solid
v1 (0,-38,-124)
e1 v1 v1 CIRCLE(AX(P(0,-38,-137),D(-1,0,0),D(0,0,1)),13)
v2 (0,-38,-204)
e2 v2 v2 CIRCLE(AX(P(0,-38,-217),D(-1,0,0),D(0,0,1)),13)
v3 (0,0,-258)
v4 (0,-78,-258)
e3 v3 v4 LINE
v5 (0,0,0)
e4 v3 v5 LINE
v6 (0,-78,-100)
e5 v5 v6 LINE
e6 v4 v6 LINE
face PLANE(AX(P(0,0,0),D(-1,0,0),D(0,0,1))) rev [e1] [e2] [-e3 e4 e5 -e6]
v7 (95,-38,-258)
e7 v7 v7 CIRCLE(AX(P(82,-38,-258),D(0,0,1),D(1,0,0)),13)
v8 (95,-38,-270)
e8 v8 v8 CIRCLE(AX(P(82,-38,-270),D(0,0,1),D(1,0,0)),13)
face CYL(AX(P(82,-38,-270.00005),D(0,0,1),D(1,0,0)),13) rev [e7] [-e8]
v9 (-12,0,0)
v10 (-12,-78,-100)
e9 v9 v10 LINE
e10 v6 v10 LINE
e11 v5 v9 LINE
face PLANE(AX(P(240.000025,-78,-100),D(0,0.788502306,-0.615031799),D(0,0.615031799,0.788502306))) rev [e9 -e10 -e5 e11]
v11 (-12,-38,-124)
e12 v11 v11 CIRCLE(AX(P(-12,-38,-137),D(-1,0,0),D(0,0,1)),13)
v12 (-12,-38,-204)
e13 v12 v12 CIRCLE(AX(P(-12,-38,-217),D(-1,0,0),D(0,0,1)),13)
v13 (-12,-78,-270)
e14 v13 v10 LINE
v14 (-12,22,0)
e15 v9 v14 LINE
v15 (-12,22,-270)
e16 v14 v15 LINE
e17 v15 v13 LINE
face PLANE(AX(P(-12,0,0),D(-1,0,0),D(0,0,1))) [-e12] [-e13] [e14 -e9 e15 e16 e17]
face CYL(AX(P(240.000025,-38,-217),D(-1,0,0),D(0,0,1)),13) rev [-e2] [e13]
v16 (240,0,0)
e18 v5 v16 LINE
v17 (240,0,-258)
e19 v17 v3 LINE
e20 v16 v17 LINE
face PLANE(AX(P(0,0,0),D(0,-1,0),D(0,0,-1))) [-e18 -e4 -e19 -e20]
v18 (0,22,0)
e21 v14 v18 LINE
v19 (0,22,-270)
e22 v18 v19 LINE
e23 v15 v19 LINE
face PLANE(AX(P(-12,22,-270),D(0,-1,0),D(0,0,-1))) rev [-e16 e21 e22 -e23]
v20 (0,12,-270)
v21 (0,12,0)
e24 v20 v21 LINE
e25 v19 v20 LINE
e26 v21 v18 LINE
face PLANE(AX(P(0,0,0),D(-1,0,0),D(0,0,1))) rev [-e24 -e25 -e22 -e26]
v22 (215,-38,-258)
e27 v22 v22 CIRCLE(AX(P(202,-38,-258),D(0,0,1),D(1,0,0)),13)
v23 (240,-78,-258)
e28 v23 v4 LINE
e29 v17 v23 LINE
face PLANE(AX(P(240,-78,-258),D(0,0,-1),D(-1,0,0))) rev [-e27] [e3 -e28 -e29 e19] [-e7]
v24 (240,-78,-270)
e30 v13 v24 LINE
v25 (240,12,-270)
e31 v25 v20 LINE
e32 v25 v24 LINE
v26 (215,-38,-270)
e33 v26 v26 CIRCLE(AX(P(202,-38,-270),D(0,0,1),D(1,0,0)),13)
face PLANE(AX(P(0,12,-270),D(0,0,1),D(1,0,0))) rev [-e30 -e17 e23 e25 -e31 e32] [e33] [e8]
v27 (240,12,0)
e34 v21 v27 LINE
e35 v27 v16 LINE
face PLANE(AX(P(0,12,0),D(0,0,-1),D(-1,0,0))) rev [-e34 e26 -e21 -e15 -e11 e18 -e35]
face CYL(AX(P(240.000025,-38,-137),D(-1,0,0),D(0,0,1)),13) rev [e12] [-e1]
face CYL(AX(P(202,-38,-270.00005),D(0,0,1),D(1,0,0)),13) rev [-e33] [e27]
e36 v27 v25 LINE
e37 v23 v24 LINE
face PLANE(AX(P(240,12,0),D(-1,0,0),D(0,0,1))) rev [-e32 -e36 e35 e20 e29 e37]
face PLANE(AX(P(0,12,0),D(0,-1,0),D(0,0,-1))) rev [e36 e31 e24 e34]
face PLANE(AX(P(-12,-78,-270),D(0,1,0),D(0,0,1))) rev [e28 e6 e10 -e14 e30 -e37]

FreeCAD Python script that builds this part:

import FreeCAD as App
import Part
import Sketcher

V = App.Vector
Q = App.Units.Quantity

doc = App.newDocument("Part")
body = doc.addObject("PartDesign::Body", "Body")

sketch1 = body.newObject("Sketcher::SketchObject", "Sketch")
sketch1.AttachmentSupport = (doc.getObject("XZ_Plane"), [""])
sketch1.MapMode = "FlatFace"
sketch1.addGeometry(Part.LineSegment(V(0, -270, 0), V(0, 0, 0)), False)
sketch1.addGeometry(Part.LineSegment(V(0, 0, 0), V(240, 0, 0)), False)
sketch1.addGeometry(Part.LineSegment(V(240, 0, 0), V(240, -270, 0)), False)
sketch1.addGeometry(Part.LineSegment(V(240, -270, 0), V(0, -270, 0)), False)
sketch1.addConstraint(Sketcher.Constraint("Coincident", 0, 2, 1, 1))
sketch1.addConstraint(Sketcher.Constraint("Coincident", 1, 2, 2, 1))
sketch1.addConstraint(Sketcher.Constraint("Coincident", 2, 2, 3, 1))
sketch1.addConstraint(Sketcher.Constraint("Coincident", 3, 2, 0, 1))
sketch1.addConstraint(Sketcher.Constraint("Vertical", 0))
sketch1.addConstraint(Sketcher.Constraint("Horizontal", 1))
sketch1.addConstraint(Sketcher.Constraint("Vertical", 2))
sketch1.addConstraint(Sketcher.Constraint("Horizontal", 3))
sketch1.addConstraint(Sketcher.Constraint("Coincident", 0, 2, -1, 1))
sketch1.addConstraint(Sketcher.Constraint("DistanceX", 1, 1, 1, 2, Q("240 mm")))
sketch1.addConstraint(Sketcher.Constraint("DistanceY", 0, 1, 0, 2, Q("270 mm")))
pad1 = body.newObject("PartDesign::Pad", "Pad")
pad1.Profile = sketch1
pad1.Length = 12
pad1.Reversed = True

sketch2 = body.newObject("Sketcher::SketchObject", "Sketch001")
sketch2.AttachmentSupport = (doc.getObject("YZ_Plane"), [""])
sketch2.MapMode = "FlatFace"
sketch2.addGeometry(Part.LineSegment(V(22, -270, 0), V(-78, -270, 0)), False)
sketch2.addGeometry(Part.LineSegment(V(-78, -270, 0), V(-78, 0, 0)), False)
sketch2.addGeometry(Part.LineSegment(V(-78, 0, 0), V(22, 0, 0)), False)
sketch2.addGeometry(Part.LineSegment(V(22, 0, 0), V(22, -270, 0)), False)
sketch2.addConstraint(Sketcher.Constraint("Coincident", 0, 2, 1, 1))
sketch2.addConstraint(Sketcher.Constraint("Coincident", 1, 2, 2, 1))
sketch2.addConstraint(Sketcher.Constraint("Coincident", 2, 2, 3, 1))
sketch2.addConstraint(Sketcher.Constraint("Coincident", 3, 2, 0, 1))
sketch2.addConstraint(Sketcher.Constraint("Horizontal", 0))
sketch2.addConstraint(Sketcher.Constraint("Vertical", 1))
sketch2.addConstraint(Sketcher.Constraint("Horizontal", 2))
sketch2.addConstraint(Sketcher.Constraint("Vertical", 3))
sketch2.addConstraint(Sketcher.Constraint("PointOnObject", 1, 2, -1))
sketch2.addConstraint(Sketcher.Constraint("DistanceX", 0, 2, 0, 1, Q("100 mm")))
sketch2.addConstraint(Sketcher.Constraint("DistanceY", 1, 1, 1, 2, Q("270 mm")))
sketch2.addConstraint(Sketcher.Constraint("DistanceX", 0, 2, -1, 1, Q("78 mm")))
pad2 = body.newObject("PartDesign::Pad", "Pad001")
pad2.Profile = sketch2
pad2.Length = 12
pad2.Reversed = True

sketch3 = body.newObject("Sketcher::SketchObject", "Sketch002")
sketch3.AttachmentSupport = (doc.getObject("YZ_Plane"), [""])
sketch3.MapMode = "FlatFace"
sketch3.addGeometry(Part.LineSegment(V(0, -258, 0), V(-78, -258, 0)), False)
sketch3.addGeometry(Part.LineSegment(V(-78, -258, 0), V(-78, -270, 0)), False)
sketch3.addGeometry(Part.LineSegment(V(-78, -270, 0), V(0, -270, 0)), False)
sketch3.addGeometry(Part.LineSegment(V(0, -270, 0), V(0, -258, 0)), False)
sketch3.addConstraint(Sketcher.Constraint("Coincident", 0, 2, 1, 1))
sketch3.addConstraint(Sketcher.Constraint("Coincident", 1, 2, 2, 1))
sketch3.addConstraint(Sketcher.Constraint("Coincident", 2, 2, 3, 1))
sketch3.addConstraint(Sketcher.Constraint("Coincident", 3, 2, 0, 1))
sketch3.addConstraint(Sketcher.Constraint("Horizontal", 0))
sketch3.addConstraint(Sketcher.Constraint("Vertical", 1))
sketch3.addConstraint(Sketcher.Constraint("Horizontal", 2))
sketch3.addConstraint(Sketcher.Constraint("Vertical", 3))
sketch3.addConstraint(Sketcher.Constraint("PointOnObject", 2, 2, -2))
sketch3.addConstraint(Sketcher.Constraint("DistanceX", 0, 2, 0, 1, Q("78 mm")))
sketch3.addConstraint(Sketcher.Constraint("DistanceY", 1, 2, 1, 1, Q("12 mm")))
sketch3.addConstraint(Sketcher.Constraint("DistanceY", 0, 2, -1, 1, Q("258 mm")))
pad3 = body.newObject("PartDesign::Pad", "Pad002")
pad3.Profile = sketch3
pad3.Length = 240

sketch4 = body.newObject("Sketcher::SketchObject", "Sketch003")
sketch4.AttachmentSupport = (doc.getObject("XY_Plane"), [""])
sketch4.MapMode = "FlatFace"
sketch4.AttachmentOffset = App.Placement(V(0, 0, -258), App.Rotation())
sketch4.addGeometry(Part.Circle(V(82, -38, 0), V(0, 0, 1), 13), False)
sketch4.addGeometry(Part.Circle(V(202, -38, 0), V(0, 0, 1), 13), False)
sketch4.addConstraint(Sketcher.Constraint("Equal", 0, 1))
sketch4.addConstraint(Sketcher.Constraint("Horizontal", 0, 3, 1, 3))
sketch4.addConstraint(Sketcher.Constraint("Diameter", 0, Q("26 mm")))
sketch4.addConstraint(Sketcher.Constraint("DistanceX", -1, 1, 0, 3, Q("82 mm")))
sketch4.addConstraint(Sketcher.Constraint("DistanceY", 0, 3, -1, 1, Q("38 mm")))
sketch4.addConstraint(Sketcher.Constraint("DistanceX", -1, 1, 1, 3, Q("202 mm")))
pocket1 = body.newObject("PartDesign::Pocket", "Pocket")
pocket1.Profile = sketch4
pocket1.Type = "ThroughAll"

sketch5 = body.newObject("Sketcher::SketchObject", "Sketch004")
sketch5.AttachmentSupport = (doc.getObject("YZ_Plane"), [""])
sketch5.MapMode = "FlatFace"
sketch5.AttachmentOffset = App.Placement(V(0, 0, -12), App.Rotation())
sketch5.addGeometry(Part.Circle(V(-38, -217, 0), V(0, 0, 1), 13), False)
sketch5.addGeometry(Part.Circle(V(-38, -137, 0), V(0, 0, 1), 13), False)
sketch5.addGeometry(Part.LineSegment(V(0, 0, 0), V(-78, -100, 0)), False)
sketch5.addGeometry(Part.LineSegment(V(-78, -100, 0), V(-78, 0, 0)), False)
sketch5.addGeometry(Part.LineSegment(V(-78, 0, 0), V(0, 0, 0)), False)
sketch5.addConstraint(Sketcher.Constraint("Coincident", 2, 2, 3, 1))
sketch5.addConstraint(Sketcher.Constraint("Coincident", 3, 2, 4, 1))
sketch5.addConstraint(Sketcher.Constraint("Coincident", 4, 2, 2, 1))
sketch5.addConstraint(Sketcher.Constraint("Vertical", 3))
sketch5.addConstraint(Sketcher.Constraint("Horizontal", 4))
sketch5.addConstraint(Sketcher.Constraint("Coincident", 4, 2, -1, 1))
sketch5.addConstraint(Sketcher.Constraint("Equal", 0, 1))
sketch5.addConstraint(Sketcher.Constraint("Vertical", 0, 3, 1, 3))
sketch5.addConstraint(Sketcher.Constraint("Diameter", 0, Q("26 mm")))
sketch5.addConstraint(Sketcher.Constraint("DistanceX", 4, 1, 4, 2, Q("78 mm")))
sketch5.addConstraint(Sketcher.Constraint("DistanceY", 3, 1, 3, 2, Q("100 mm")))
sketch5.addConstraint(Sketcher.Constraint("DistanceX", 0, 3, -1, 1, Q("38 mm")))
sketch5.addConstraint(Sketcher.Constraint("DistanceY", 0, 3, -1, 1, Q("217 mm")))
sketch5.addConstraint(Sketcher.Constraint("DistanceY", 1, 3, -1, 1, Q("137 mm")))
pocket2 = body.newObject("PartDesign::Pocket", "Pocket001")
pocket2.Profile = sketch5
pocket2.Type = "ThroughAll"
pocket2.Reversed = True

doc.recompute()
